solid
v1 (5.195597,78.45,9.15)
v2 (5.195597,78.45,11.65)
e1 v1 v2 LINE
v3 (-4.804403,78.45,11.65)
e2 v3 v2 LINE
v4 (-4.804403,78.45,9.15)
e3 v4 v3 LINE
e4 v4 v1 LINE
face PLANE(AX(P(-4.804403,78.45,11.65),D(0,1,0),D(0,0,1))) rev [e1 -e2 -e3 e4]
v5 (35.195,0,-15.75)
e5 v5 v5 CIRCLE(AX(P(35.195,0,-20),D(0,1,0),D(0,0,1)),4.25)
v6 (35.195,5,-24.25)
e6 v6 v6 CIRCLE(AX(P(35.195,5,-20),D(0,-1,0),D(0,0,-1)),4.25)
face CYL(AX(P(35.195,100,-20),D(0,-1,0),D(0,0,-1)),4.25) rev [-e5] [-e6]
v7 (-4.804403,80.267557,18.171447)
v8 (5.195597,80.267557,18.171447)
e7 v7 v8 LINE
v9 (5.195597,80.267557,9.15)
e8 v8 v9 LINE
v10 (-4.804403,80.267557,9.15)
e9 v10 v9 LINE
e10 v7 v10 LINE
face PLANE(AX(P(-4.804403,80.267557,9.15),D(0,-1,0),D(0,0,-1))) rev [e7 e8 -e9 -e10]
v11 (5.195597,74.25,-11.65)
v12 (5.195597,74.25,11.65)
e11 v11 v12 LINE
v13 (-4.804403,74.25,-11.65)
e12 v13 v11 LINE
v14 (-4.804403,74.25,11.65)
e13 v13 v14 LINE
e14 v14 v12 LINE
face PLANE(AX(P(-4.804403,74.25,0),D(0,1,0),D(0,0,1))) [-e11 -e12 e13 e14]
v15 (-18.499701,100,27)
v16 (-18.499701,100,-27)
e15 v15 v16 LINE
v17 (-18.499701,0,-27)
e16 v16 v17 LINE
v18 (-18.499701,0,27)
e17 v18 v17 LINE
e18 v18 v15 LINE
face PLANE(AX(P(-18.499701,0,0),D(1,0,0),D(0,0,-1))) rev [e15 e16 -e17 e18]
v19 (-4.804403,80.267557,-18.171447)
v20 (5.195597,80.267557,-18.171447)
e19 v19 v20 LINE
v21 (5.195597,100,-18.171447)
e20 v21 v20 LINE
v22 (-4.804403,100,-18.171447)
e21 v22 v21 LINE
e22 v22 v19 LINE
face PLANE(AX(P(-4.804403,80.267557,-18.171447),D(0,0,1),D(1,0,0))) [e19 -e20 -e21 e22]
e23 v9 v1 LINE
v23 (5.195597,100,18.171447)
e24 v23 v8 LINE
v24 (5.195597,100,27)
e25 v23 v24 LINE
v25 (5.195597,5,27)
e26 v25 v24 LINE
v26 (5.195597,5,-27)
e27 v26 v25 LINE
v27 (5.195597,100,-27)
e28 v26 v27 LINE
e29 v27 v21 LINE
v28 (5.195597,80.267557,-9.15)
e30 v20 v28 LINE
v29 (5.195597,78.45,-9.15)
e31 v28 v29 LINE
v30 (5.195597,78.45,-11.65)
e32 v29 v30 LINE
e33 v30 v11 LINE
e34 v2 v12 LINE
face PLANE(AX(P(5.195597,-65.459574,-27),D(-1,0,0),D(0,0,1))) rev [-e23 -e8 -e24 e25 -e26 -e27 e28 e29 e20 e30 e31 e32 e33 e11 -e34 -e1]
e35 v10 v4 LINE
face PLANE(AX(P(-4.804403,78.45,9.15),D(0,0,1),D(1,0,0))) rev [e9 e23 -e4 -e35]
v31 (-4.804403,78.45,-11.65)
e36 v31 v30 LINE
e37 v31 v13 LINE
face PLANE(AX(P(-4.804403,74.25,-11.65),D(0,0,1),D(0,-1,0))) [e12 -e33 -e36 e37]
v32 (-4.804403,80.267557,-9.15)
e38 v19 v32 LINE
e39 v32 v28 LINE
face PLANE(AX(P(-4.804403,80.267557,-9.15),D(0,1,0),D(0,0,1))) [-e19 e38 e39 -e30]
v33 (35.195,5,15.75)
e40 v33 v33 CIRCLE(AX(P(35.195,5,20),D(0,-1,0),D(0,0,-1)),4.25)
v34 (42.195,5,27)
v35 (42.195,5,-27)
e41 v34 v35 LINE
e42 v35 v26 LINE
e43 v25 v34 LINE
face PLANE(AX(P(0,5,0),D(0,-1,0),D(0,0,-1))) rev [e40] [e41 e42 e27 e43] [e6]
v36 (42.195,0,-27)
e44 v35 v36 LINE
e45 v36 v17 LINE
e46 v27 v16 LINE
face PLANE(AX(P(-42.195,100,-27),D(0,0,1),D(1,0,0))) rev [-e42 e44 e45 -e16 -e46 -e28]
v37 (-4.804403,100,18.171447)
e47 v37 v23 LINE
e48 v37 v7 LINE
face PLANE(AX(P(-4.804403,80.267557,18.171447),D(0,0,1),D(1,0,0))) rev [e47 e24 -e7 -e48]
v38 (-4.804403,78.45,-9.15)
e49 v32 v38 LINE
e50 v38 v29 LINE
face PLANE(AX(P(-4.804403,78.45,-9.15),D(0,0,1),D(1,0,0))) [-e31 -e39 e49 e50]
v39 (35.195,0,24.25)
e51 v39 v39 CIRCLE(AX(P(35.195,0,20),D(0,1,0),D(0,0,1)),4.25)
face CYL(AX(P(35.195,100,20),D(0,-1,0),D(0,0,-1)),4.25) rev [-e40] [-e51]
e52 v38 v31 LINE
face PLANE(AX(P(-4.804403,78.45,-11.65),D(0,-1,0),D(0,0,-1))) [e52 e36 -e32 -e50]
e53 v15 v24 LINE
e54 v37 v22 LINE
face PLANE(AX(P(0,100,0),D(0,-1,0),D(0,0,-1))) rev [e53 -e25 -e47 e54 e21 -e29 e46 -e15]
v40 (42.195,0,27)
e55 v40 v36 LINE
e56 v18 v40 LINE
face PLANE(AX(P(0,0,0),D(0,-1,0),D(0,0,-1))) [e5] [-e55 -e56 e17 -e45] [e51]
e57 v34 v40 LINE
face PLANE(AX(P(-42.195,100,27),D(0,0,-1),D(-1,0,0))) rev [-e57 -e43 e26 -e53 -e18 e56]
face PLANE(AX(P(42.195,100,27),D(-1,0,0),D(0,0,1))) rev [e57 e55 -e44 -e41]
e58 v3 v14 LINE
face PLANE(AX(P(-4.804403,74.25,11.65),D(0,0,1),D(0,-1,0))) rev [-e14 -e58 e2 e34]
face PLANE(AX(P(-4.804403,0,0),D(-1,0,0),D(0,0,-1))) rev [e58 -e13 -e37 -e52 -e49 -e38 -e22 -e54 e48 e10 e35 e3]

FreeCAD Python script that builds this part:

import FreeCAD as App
import Part
import Sketcher

V = App.Vector
Q = App.Units.Quantity


def add_polygon(sketch, points):
    """Adds a closed chain of lines whose ends are joined by coincident constraints."""
    first, n = sketch.GeometryCount, len(points)
    for a, b in zip(points, points[1:] + points[:1]):
        sketch.addGeometry(Part.LineSegment(App.Vector(*a, 0), App.Vector(*b, 0)), False)
    for i in range(n):
        sketch.addConstraint(Sketcher.Constraint("Coincident", first + i, 2, first + (i + 1) % n, 1))

doc = App.newDocument("Part")
body = doc.addObject("PartDesign::Body", "Body")

sketch1 = doc.addObject("Sketcher::SketchObject", "Sketch")
body.addObject(sketch1)
sketch1.AttachmentSupport = (doc.XZ_Plane, [""])
sketch1.MapMode = "FlatFace"
add_polygon(sketch1, [(-42.195, -27), (-42.195, 27), (42.195, 27), (42.195, -27)])
sketch1.addGeometry(Part.Circle(V(35.195, 20, 0), V(0, 0, 1), 4.25), False)
sketch1.addGeometry(Part.Circle(V(35.195, -20, 0), V(0, 0, 1), 4.25), False)
sketch1.addConstraint(Sketcher.Constraint("Vertical", 0))
sketch1.addConstraint(Sketcher.Constraint("Horizontal", 1))
sketch1.addConstraint(Sketcher.Constraint("Vertical", 2))
sketch1.addConstraint(Sketcher.Constraint("Horizontal", 3))
sketch1.addConstraint(Sketcher.Constraint("Equal", 4, 5))
sketch1.addConstraint(Sketcher.Constraint("Symmetric", 0, 2, 2, 2, -1, 1))
sketch1.addConstraint(Sketcher.Constraint("Symmetric", 4, 3, 5, 3, -1))
sketch1.addConstraint(Sketcher.Constraint("Diameter", 4, Q("8.5 mm")))
sketch1.addConstraint(Sketcher.Constraint("DistanceY", 0, 1, 0, 2, Q("54 mm")))
sketch1.addConstraint(Sketcher.Constraint("DistanceY", -1, 1, 4, 3, Q("20 mm")))
sketch1.addConstraint(Sketcher.Constraint("DistanceX", 4, 3, 1, 2, Q("7 mm")))
sketch1.addConstraint(Sketcher.Constraint("DistanceX", 1, 1, 1, 2, Q("84.39 mm")))
pad1 = doc.addObject("PartDesign::Pad", "Pad")
body.addObject(pad1)
pad1.Profile = sketch1
pad1.Length = 100
pad1.Reversed = True

sketch2 = doc.addObject("Sketcher::SketchObject", "Sketch001")
body.addObject(sketch2)
sketch2.AttachmentSupport = (doc.YZ_Plane, [""])
sketch2.MapMode = "FlatFace"
sketch2.AttachmentOffset = App.Placement(V(0, 0, -42.195), App.Rotation())
add_polygon(sketch2, [(78.45, -9.15), (78.45, -11.65), (74.25, -11.65), (74.25, 0), (100, 0), (100, -18.171447), (80.267557, -18.171447), (80.267557, -9.15)])
sketch2.addConstraint(Sketcher.Constraint("Vertical", 0))
sketch2.addConstraint(Sketcher.Constraint("Horizontal", 1))
sketch2.addConstraint(Sketcher.Constraint("Vertical", 2))
sketch2.addConstraint(Sketcher.Constraint("Horizontal", 3))
sketch2.addConstraint(Sketcher.Constraint("Vertical", 4))
sketch2.addConstraint(Sketcher.Constraint("Horizontal", 5))
sketch2.addConstraint(Sketcher.Constraint("Vertical", 6))
sketch2.addConstraint(Sketcher.Constraint("Horizontal", 7))
sketch2.addConstraint(Sketcher.Constraint("PointOnObject", 2, 2, -1))
sketch2.addConstraint(Sketcher.Constraint("DistanceX", 1, 2, 1, 1, Q("4.2 mm")))
sketch2.addConstraint(Sketcher.Constraint("DistanceY", 0, 2, 0, 1, Q("2.5 mm")))
sketch2.addConstraint(Sketcher.Constraint("DistanceX", -1, 1, 3, 2, Q("100 mm")))
sketch2.addConstraint(Sketcher.Constraint("DistanceX", 3, 1, 3, 2, Q("25.75 mm")))
sketch2.addConstraint(Sketcher.Constraint("DistanceY", 2, 1, 2, 2, Q("11.65 mm")))
sketch2.addConstraint(Sketcher.Constraint("DistanceX", 5, 2, 5, 1, Q("19.732443 mm")))
sketch2.addConstraint(Sketcher.Constraint("DistanceY", 4, 2, 4, 1, Q("18.171447 mm")))
pocket1 = doc.addObject("PartDesign::Pocket", "Pocket")
body.addObject(pocket1)
pocket1.Profile = sketch2
pocket1.Length = 10
pocket1.Reversed = True

sketch3 = doc.addObject("Sketcher::SketchObject", "Sketch002")
body.addObject(sketch3)
sketch3.AttachmentSupport = (doc.XZ_Plane, [""])
sketch3.MapMode = "FlatFace"
sketch3.AttachmentOffset = App.Placement(V(0, 0, -100), App.Rotation())
add_polygon(sketch3, [(5.195597, -27), (5.195597, 27), (42.195, 27), (42.195, -27)])
sketch3.addConstraint(Sketcher.Constraint("Vertical", 0))
sketch3.addConstraint(Sketcher.Constraint("Horizontal", 1))
sketch3.addConstraint(Sketcher.Constraint("Vertical", 2))
sketch3.addConstraint(Sketcher.Constraint("Horizontal", 3))
sketch3.addConstraint(Sketcher.Constraint("DistanceY", 0, 1, 0, 2, Q("54 mm")))
sketch3.addConstraint(Sketcher.Constraint("DistanceY", -1, 1, 0, 2, Q("27 mm")))
sketch3.addConstraint(Sketcher.Constraint("DistanceX", -1, 1, 1, 2, Q("42.195 mm")))
sketch3.addConstraint(Sketcher.Constraint("DistanceX", 1, 1, 1, 2, Q("36.999403 mm")))
pocket2 = doc.addObject("PartDesign::Pocket", "Pocket001")
body.addObject(pocket2)
pocket2.Profile = sketch3
pocket2.Length = 95
pocket2.Reversed = True
doc.recompute()

mirrored = doc.addObject("PartDesign::Mirrored", "Mirrored")
body.addObject(mirrored)
mirrored.Originals = [pocket1]
mirrored.MirrorPlane = (doc.XY_Plane, [""])
body.Tip = mirrored
doc.recompute()

datumplane = doc.addObject("PartDesign::Plane", "DatumPlane")
body.addObject(datumplane)
datumplane.AttachmentSupport = (doc.YZ_Plane, [""])
datumplane.MapMode = "FlatFace"
datumplane.AttachmentOffset = App.Placement(V(0, 0, -18.499702), App.Rotation())
mirrored2 = doc.addObject("PartDesign::Mirrored", "Mirrored001")
body.addObject(mirrored2)
mirrored2.Originals = [pocket1]
mirrored2.MirrorPlane = (datumplane, [""])
body.Tip = mirrored2

sketch4 = doc.addObject("Sketcher::SketchObject", "Sketch003")
body.addObject(sketch4)
sketch4.AttachmentSupport = (doc.YZ_Plane, [""])
sketch4.MapMode = "FlatFace"
sketch4.AttachmentOffset = App.Placement(V(0, 0, 5.195597), App.Rotation())
add_polygon(sketch4, [(78.45, 9.15), (78.45, 11.65), (74.25, 11.65), (74.25, 0), (100, 0), (100, 18.171447), (80.267557, 18.171447), (80.267557, 9.15)])
sketch4.addConstraint(Sketcher.Constraint("Vertical", 0))
sketch4.addConstraint(Sketcher.Constraint("Horizontal", 1))
sketch4.addConstraint(Sketcher.Constraint("Vertical", 2))
sketch4.addConstraint(Sketcher.Constraint("Horizontal", 3))
sketch4.addConstraint(Sketcher.Constraint("Vertical", 4))
sketch4.addConstraint(Sketcher.Constraint("Horizontal", 5))
sketch4.addConstraint(Sketcher.Constraint("Vertical", 6))
sketch4.addConstraint(Sketcher.Constraint("Horizontal", 7))
sketch4.addConstraint(Sketcher.Constraint("PointOnObject", 2, 2, -1))
sketch4.addConstraint(Sketcher.Constraint("DistanceX", 1, 2, 1, 1, Q("4.2 mm")))
sketch4.addConstraint(Sketcher.Constraint("DistanceY", 0, 1, 0, 2, Q("2.5 mm")))
sketch4.addConstraint(Sketcher.Constraint("DistanceX", -1, 1, 3, 2, Q("100 mm")))
sketch4.addConstraint(Sketcher.Constraint("DistanceX", 3, 1, 3, 2, Q("25.75 mm")))
sketch4.addConstraint(Sketcher.Constraint("DistanceY", 2, 2, 2, 1, Q("11.65 mm")))
sketch4.addConstraint(Sketcher.Constraint("DistanceX", 5, 2, 5, 1, Q("19.732443 mm")))
sketch4.addConstraint(Sketcher.Constraint("DistanceY", 4, 1, 4, 2, Q("18.171447 mm")))
pocket3 = doc.addObject("PartDesign::Pocket", "Pocket002")
body.addObject(pocket3)
pocket3.Profile = sketch4
pocket3.Length = 10

sketch5 = doc.addObject("Sketcher::SketchObject", "Sketch004")
body.addObject(sketch5)
sketch5.AttachmentSupport = (doc.YZ_Plane, [""])
sketch5.MapMode = "FlatFace"
sketch5.AttachmentOffset = App.Placement(V(0, 0, -18.499702), App.Rotation())
add_polygon(sketch5, [(115.246022, 48.179892), (-25.926865, 48.179892), (-25.926865, -93.225188), (115.246022, -93.225188)])
sketch5.addConstraint(Sketcher.Constraint("Horizontal", 0))
sketch5.addConstraint(Sketcher.Constraint("Vertical", 1))
sketch5.addConstraint(Sketcher.Constraint("Horizontal", 2))
sketch5.addConstraint(Sketcher.Constraint("Vertical", 3))
sketch5.addConstraint(Sketcher.Constraint("DistanceY", 1, 2, 1, 1, Q("141.405079 mm")))
sketch5.addConstraint(Sketcher.Constraint("DistanceX", 0, 2, 0, 1, Q("141.172887 mm")))
sketch5.addConstraint(Sketcher.Constraint("DistanceY", -1, 1, 0, 2, Q("48.179892 mm")))
sketch5.addConstraint(Sketcher.Constraint("DistanceX", -1, 1, 2, 2, Q("115.246022 mm")))
pocket4 = doc.addObject("PartDesign::Pocket", "Pocket003")
body.addObject(pocket4)
pocket4.Profile = sketch5
pocket4.Type = "UpToFirst"

doc.recompute()
